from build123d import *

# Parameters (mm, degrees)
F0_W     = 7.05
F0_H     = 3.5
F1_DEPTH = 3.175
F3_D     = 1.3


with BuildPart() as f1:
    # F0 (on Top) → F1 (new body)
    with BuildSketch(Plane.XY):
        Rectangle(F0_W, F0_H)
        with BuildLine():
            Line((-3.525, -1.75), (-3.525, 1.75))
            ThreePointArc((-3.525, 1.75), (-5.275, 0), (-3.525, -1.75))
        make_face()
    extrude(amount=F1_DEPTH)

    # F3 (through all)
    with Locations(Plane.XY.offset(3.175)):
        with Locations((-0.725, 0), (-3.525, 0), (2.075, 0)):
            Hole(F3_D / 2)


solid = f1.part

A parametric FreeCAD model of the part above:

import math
import FreeCAD as App
import Part
import Sketcher

V = App.Vector
Q = App.Units.Quantity

doc = App.newDocument("Part")
body = doc.addObject("PartDesign::Body", "Body")

# Sketch on XY plane
sketch1 = body.newObject("Sketcher::SketchObject", "Sketch")
sketch1.AttachmentSupport = (doc.getObject("XY_Plane"), [""])
sketch1.MapMode = "FlatFace"
sketch1.addGeometry(Part.LineSegment(V(-3.5, -1.8, 0), V(3.5, -1.8, 0)), False)
sketch1.addGeometry(Part.LineSegment(V(3.5, -1.8, 0), V(3.5, 1.8, 0)), False)
sketch1.addGeometry(Part.LineSegment(V(3.5, 1.8, 0), V(-3.5, 1.8, 0)), False)
sketch1.addGeometry(Part.ArcOfCircle(Part.Circle(V(-3.5, 0, 0), V(0, 0, 1), 1.8), math.radians(90), math.radians(270)), False)
sketch1.addConstraint(Sketcher.Constraint("Coincident", 0, 2, 1, 1))
sketch1.addConstraint(Sketcher.Constraint("Coincident", 1, 2, 2, 1))
sketch1.addConstraint(Sketcher.Constraint("Tangent", 2, 2, 3, 1))
sketch1.addConstraint(Sketcher.Constraint("Tangent", 3, 2, 0, 1))
sketch1.addConstraint(Sketcher.Constraint("Horizontal", 0))
sketch1.addConstraint(Sketcher.Constraint("Vertical", 1))
sketch1.addConstraint(Sketcher.Constraint("Horizontal", 2))
sketch1.addConstraint(Sketcher.Constraint("Symmetric", 0, 2, 2, 2, -1, 1))
sketch1.addConstraint(Sketcher.Constraint("Radius", 3, Q("1.75 mm")))
sketch1.addConstraint(Sketcher.Constraint("DistanceX", 0, 1, 0, 2, Q("7.05 mm")))
pad1 = body.newObject("PartDesign::Pad", "Pad")
pad1.Profile = sketch1
pad1.Length = 3.175

# Sketch on XY plane
sketch2 = body.newObject("Sketcher::SketchObject", "Sketch001")
sketch2.AttachmentSupport = (doc.getObject("XY_Plane"), [""])
sketch2.MapMode = "FlatFace"
sketch2.AttachmentOffset = App.Placement(V(0, 0, 3.175), App.Rotation())
sketch2.addGeometry(Part.Circle(V(-0.7, 0, 0), V(0, 0, 1), 0.7), False)
sketch2.addGeometry(Part.Circle(V(-3.5, 0, 0), V(0, 0, 1), 0.7), False)
sketch2.addGeometry(Part.Circle(V(2.1, 0, 0), V(0, 0, 1), 0.7), False)
sketch2.addConstraint(Sketcher.Constraint("Equal", 0, 1))
sketch2.addConstraint(Sketcher.Constraint("Equal", 1, 2))
sketch2.addConstraint(Sketcher.Constraint("PointOnObject", 0, 3, -1))
sketch2.addConstraint(Sketcher.Constraint("PointOnObject", 1, 3, -1))
sketch2.addConstraint(Sketcher.Constraint("PointOnObject", 2, 3, -1))
sketch2.addConstraint(Sketcher.Constraint("Diameter", 0, Q("1.3 mm")))
sketch2.addConstraint(Sketcher.Constraint("DistanceX", 1, 3, 0, 3, Q("2.8 mm")))
sketch2.addConstraint(Sketcher.Constraint("DistanceX", 0, 3, 2, 3, Q("2.8 mm")))
sketch2.addConstraint(Sketcher.Constraint("DistanceX", 0, 3, -1, 1, Q("0.725 mm")))
doc.recompute()
hole = body.newObject("PartDesign::Hole", "Hole")
hole.Profile = sketch2
hole.ThreadType = "None"
hole.Diameter = 1.3
hole.DepthType = "ThroughAll"

doc.recompute()
